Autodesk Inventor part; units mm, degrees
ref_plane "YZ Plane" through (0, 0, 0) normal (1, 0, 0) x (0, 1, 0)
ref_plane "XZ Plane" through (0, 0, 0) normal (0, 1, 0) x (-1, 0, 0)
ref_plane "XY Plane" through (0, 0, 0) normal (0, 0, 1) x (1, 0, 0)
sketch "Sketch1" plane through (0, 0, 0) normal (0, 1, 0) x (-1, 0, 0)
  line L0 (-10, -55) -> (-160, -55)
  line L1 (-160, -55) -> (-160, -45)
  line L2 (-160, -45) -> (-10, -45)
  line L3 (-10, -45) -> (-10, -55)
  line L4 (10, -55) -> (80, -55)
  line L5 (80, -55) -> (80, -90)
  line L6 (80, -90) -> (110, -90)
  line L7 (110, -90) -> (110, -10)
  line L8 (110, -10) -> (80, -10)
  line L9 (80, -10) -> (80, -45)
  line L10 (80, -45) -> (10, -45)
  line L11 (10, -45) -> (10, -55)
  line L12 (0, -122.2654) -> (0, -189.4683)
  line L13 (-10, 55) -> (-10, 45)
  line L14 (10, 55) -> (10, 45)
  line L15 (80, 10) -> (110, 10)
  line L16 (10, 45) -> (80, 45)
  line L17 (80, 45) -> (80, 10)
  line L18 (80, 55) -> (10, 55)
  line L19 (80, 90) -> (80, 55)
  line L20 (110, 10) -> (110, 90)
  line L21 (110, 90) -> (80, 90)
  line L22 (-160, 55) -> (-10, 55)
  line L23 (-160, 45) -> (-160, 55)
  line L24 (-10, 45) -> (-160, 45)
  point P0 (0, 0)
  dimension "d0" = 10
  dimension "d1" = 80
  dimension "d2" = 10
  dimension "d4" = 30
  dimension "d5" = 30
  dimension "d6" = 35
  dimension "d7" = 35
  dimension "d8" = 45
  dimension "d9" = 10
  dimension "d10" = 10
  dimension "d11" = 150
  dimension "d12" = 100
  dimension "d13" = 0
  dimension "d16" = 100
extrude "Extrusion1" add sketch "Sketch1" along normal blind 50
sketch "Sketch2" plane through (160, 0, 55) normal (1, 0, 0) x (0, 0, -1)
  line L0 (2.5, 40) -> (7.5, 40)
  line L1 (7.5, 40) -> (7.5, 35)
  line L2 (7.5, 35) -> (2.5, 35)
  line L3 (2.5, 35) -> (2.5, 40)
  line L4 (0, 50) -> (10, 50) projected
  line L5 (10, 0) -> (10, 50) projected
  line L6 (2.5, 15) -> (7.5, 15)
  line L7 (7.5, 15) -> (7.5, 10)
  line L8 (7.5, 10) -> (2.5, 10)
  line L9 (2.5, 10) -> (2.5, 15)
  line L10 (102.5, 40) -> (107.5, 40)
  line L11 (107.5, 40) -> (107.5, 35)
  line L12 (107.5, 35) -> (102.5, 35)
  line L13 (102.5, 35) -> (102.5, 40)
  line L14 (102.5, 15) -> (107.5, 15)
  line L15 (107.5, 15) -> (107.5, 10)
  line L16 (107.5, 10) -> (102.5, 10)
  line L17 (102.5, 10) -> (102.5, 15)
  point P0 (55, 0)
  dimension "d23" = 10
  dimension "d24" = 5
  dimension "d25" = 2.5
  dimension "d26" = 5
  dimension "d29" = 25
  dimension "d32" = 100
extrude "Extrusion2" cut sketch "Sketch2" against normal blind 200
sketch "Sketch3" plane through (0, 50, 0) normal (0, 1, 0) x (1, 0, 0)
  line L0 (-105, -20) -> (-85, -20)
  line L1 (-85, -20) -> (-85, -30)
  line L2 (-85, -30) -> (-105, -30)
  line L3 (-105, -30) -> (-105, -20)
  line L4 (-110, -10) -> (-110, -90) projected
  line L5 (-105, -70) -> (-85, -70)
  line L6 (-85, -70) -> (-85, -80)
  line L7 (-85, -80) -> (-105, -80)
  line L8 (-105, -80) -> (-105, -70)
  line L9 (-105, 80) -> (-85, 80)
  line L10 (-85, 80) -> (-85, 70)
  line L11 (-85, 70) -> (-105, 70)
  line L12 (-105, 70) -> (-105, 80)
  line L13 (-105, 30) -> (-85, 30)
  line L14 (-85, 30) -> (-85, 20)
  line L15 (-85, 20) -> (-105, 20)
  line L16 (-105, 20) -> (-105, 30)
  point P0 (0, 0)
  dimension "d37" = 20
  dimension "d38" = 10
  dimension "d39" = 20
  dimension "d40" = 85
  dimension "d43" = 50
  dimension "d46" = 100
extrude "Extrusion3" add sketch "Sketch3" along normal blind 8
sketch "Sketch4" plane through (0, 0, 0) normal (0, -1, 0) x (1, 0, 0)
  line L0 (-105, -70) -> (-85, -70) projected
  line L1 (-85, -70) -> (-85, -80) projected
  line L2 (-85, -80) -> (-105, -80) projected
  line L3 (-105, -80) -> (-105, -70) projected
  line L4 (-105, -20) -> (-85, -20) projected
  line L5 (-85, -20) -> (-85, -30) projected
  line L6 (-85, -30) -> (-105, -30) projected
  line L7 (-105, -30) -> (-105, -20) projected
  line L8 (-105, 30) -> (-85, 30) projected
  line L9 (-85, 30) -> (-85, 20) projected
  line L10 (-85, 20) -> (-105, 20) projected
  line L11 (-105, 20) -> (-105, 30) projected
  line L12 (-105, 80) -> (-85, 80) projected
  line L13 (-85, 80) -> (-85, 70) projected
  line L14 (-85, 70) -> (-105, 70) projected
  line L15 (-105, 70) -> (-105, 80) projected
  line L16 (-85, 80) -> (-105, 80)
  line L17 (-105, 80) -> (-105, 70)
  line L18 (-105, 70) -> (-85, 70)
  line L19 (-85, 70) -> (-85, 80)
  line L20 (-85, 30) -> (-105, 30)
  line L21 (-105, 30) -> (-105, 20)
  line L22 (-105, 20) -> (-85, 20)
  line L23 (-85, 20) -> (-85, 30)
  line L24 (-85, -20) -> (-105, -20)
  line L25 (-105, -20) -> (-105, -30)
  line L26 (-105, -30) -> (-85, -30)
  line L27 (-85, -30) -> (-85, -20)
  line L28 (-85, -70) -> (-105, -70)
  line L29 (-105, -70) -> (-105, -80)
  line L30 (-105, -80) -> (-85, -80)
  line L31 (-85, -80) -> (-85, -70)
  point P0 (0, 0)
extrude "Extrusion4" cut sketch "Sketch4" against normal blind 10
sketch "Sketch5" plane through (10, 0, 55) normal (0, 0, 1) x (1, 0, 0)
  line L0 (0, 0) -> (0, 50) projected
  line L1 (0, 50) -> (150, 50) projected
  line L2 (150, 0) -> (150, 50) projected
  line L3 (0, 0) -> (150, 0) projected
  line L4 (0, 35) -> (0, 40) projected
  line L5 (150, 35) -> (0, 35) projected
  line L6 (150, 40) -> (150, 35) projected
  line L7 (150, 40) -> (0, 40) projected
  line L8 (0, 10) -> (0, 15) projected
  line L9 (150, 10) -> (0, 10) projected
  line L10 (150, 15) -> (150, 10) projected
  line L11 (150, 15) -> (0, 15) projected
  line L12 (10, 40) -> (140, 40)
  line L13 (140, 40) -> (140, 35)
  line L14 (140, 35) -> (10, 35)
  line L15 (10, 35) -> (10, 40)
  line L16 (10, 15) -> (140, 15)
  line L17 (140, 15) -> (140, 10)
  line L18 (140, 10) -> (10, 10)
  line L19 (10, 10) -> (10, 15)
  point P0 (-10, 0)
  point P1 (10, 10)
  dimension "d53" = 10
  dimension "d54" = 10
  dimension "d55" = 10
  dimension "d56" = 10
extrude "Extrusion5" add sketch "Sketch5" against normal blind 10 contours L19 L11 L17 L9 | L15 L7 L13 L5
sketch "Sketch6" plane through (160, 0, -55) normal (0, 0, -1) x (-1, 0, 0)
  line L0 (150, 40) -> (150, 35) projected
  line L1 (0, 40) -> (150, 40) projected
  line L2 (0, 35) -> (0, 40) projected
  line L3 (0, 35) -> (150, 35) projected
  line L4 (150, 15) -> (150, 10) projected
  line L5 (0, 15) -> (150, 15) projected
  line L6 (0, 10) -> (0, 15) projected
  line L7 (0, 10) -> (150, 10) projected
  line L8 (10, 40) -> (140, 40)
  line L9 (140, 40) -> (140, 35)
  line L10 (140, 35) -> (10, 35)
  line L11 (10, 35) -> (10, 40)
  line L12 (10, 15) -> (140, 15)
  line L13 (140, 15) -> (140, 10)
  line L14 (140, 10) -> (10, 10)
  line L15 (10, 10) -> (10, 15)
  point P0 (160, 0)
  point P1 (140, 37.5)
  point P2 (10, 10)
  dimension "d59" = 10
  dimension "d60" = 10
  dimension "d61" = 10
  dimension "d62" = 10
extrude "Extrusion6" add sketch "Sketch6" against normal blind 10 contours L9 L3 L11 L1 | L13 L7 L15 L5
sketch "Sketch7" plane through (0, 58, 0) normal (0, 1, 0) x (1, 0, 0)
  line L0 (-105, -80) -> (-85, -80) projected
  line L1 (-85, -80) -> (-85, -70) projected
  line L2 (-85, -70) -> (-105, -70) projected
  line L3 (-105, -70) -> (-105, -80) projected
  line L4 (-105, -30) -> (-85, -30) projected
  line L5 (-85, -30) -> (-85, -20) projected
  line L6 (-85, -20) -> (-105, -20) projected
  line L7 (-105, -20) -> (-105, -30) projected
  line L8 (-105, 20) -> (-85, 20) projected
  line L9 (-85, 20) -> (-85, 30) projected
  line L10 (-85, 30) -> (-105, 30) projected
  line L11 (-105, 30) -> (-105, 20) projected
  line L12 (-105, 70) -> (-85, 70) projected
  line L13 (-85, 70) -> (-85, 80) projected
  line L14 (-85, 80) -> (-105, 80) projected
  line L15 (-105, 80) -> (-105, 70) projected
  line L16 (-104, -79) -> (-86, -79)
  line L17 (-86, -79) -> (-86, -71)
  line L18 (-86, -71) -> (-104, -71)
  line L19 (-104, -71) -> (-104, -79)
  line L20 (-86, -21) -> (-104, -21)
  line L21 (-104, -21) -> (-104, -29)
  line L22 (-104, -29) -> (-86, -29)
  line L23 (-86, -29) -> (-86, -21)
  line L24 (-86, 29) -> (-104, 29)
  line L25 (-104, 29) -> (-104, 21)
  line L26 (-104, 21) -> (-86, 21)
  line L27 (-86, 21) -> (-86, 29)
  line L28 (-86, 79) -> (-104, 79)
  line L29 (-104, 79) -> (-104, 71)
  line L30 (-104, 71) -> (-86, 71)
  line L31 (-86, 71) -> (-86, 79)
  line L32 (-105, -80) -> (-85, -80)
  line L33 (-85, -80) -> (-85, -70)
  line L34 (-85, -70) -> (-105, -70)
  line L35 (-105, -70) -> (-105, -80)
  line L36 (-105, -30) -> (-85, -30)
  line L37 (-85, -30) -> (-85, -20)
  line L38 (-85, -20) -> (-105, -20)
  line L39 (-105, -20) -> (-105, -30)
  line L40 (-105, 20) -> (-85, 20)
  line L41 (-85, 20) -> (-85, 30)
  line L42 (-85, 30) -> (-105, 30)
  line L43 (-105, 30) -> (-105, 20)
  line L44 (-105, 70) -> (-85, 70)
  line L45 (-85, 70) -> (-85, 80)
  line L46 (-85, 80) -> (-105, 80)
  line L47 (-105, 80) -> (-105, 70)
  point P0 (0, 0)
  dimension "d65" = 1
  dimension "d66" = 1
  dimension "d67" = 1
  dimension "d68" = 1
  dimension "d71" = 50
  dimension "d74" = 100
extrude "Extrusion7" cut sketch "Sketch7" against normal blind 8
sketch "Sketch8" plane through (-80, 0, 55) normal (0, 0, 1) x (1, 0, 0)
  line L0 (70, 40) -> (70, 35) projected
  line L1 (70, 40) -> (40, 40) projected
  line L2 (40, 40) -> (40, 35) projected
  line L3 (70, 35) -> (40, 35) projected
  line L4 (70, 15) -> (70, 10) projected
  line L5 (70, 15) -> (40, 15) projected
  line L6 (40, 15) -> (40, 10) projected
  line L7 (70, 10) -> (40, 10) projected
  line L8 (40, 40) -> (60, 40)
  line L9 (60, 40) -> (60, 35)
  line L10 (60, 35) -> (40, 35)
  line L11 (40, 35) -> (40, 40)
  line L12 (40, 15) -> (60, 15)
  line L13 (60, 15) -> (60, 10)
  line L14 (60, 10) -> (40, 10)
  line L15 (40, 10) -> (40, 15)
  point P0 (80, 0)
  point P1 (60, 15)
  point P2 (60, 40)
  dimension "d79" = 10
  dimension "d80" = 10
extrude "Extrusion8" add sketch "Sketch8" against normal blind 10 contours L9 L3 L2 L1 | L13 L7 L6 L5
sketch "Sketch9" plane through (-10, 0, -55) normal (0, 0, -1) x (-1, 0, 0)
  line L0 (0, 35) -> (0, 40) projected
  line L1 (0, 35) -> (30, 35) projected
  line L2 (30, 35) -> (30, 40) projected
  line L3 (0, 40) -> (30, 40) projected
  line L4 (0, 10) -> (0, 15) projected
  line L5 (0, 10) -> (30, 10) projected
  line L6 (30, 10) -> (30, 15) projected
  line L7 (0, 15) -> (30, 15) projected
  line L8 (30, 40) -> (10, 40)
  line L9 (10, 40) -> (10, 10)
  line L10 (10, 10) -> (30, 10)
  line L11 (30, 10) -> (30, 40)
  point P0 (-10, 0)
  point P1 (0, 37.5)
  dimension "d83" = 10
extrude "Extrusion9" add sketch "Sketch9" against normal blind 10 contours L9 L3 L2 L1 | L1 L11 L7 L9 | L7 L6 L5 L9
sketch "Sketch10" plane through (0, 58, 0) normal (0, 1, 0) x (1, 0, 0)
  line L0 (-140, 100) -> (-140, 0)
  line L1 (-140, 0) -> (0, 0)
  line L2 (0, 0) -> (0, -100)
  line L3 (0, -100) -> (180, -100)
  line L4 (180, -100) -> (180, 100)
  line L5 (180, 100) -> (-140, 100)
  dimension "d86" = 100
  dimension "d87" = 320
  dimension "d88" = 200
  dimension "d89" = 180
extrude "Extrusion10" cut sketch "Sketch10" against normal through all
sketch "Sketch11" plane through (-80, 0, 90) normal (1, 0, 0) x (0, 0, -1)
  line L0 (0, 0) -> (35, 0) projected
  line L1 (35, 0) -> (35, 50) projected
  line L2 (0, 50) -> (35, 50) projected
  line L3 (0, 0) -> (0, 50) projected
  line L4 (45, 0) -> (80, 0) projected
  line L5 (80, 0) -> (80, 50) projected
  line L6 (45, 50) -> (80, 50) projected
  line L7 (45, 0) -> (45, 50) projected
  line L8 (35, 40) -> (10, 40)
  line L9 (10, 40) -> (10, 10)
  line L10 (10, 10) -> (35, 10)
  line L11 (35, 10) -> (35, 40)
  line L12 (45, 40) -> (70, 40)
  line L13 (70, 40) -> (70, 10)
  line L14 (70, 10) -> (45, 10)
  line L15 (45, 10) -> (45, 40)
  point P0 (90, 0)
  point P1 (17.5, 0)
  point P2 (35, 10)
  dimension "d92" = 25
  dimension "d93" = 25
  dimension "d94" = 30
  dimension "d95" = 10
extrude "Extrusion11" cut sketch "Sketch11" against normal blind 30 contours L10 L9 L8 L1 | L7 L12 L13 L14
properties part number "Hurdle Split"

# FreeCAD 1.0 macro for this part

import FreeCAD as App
import Part
import Sketcher


def add_polygon(sketch, points):
    """Adds a closed chain of lines whose ends are joined by coincident constraints."""
    first, n = sketch.GeometryCount, len(points)
    for a, b in zip(points, points[1:] + points[:1]):
        sketch.addGeometry(Part.LineSegment(App.Vector(*a, 0), App.Vector(*b, 0)), False)
    for i in range(n):
        sketch.addConstraint(Sketcher.Constraint("Coincident", first + i, 2, first + (i + 1) % n, 1))

doc = App.newDocument("Part")
body = doc.addObject("PartDesign::Body", "Body")
body.AllowCompound = True

# Sketch on XZ plane
sketch1 = body.newObject("Sketcher::SketchObject", "Sketch")
sketch1.AttachmentSupport = (doc.getObject("XZ_Plane"), [""])
sketch1.MapMode = "FlatFace"
add_polygon(sketch1, [(160, -55), (10, -55), (10, -45), (160, -45)])  # lines 0-3
add_polygon(sketch1, [(-10, -45), (-10, -55), (-80, -55), (-80, -90), (-110, -90), (-110, -10), (-80, -10), (-80, -45)])  # lines 4-11
add_polygon(sketch1, [(10, 45), (10, 55), (160, 55), (160, 45)])  # lines 12-15
add_polygon(sketch1, [(-80, 55), (-10, 55), (-10, 45), (-80, 45), (-80, 10), (-110, 10), (-110, 90), (-80, 90)])  # lines 16-23
sketch1.addConstraint([
    Sketcher.Constraint("Horizontal", 0),
    Sketcher.Constraint("Vertical", 1),
    Sketcher.Constraint("Horizontal", 2),
    Sketcher.Constraint("Vertical", 3),
    Sketcher.Constraint("Vertical", 4),
    Sketcher.Constraint("Horizontal", 5),
    Sketcher.Constraint("Vertical", 6),
    Sketcher.Constraint("Horizontal", 7),
    Sketcher.Constraint("Vertical", 8),
    Sketcher.Constraint("Horizontal", 9),
    Sketcher.Constraint("Vertical", 10),
    Sketcher.Constraint("Horizontal", 11),
    Sketcher.Constraint("Vertical", 12),
    Sketcher.Constraint("Horizontal", 13),
    Sketcher.Constraint("Vertical", 14),
    Sketcher.Constraint("Horizontal", 15),
    Sketcher.Constraint("Horizontal", 16),
    Sketcher.Constraint("Vertical", 17),
    Sketcher.Constraint("Horizontal", 18),
    Sketcher.Constraint("Vertical", 19),
    Sketcher.Constraint("Horizontal", 20),
    Sketcher.Constraint("Vertical", 21),
    Sketcher.Constraint("Horizontal", 22),
    Sketcher.Constraint("Vertical", 23),
    Sketcher.Constraint("Symmetric", 4, 2, 12, 2, -1, 1),
    Sketcher.Constraint("Symmetric", 0, 2, 16, 2, -1, 1),
    Sketcher.Constraint("Symmetric", 0, 2, 4, 2, -2),
    Sketcher.Constraint("Symmetric", 2, 2, 14, 2, -1),
    Sketcher.Constraint("Symmetric", 10, 2, 18, 2, -1),
    Sketcher.Constraint("Symmetric", 8, 2, 20, 2, -1),
    Sketcher.Constraint("Symmetric", 6, 2, 22, 2, -1),
    Sketcher.Constraint("Horizontal", 2, 2, 10, 2),
    Sketcher.Constraint("Vertical", 6, 2, 9, 2),
    Sketcher.Constraint("Equal", 6, 10),
    Sketcher.Constraint("DistanceX", 0, 2, 0, 1, 150.0),
    Sketcher.Constraint("DistanceX", 7, 2, 7, 1, 30.0),
    Sketcher.Constraint("DistanceY", 1, 1, 1, 2, 10.0),
    Sketcher.Constraint("DistanceY", 6, 2, 6, 1, 35.0),
    Sketcher.Constraint("DistanceX", -1, 1, 0, 2, 10.0),
    Sketcher.Constraint("DistanceY", 1, 2, -1, 1, 45.0),
    Sketcher.Constraint("DistanceX", 5, 2, -1, 1, 80.0),
])
pad1 = body.newObject("PartDesign::Pad", "Pad")
pad1.Profile = sketch1
pad1.Length = 50
pad1.Reversed = True

# Sketch on YZ plane
sketch2 = body.newObject("Sketcher::SketchObject", "Sketch001")
sketch2.AttachmentSupport = (doc.getObject("YZ_Plane"), [""])
sketch2.MapMode = "FlatFace"
sketch2.AttachmentOffset = App.Placement(App.Vector(0, 0, 160), App.Rotation())
add_polygon(sketch2, [(40, 48), (40, 52), (35, 52), (35, 48)])  # lines 0-3
add_polygon(sketch2, [(15, 48), (15, 52), (10, 52), (10, 48)])  # lines 4-7
add_polygon(sketch2, [(40, -52), (40, -48), (35, -48), (35, -52)])  # lines 8-11
add_polygon(sketch2, [(15, -52), (15, -48), (10, -48), (10, -52)])  # lines 12-15
sketch2.addConstraint([
    Sketcher.Constraint("Vertical", 0),
    Sketcher.Constraint("Horizontal", 1),
    Sketcher.Constraint("Vertical", 2),
    Sketcher.Constraint("Horizontal", 3),
    Sketcher.Constraint("Vertical", 4),
    Sketcher.Constraint("Horizontal", 5),
    Sketcher.Constraint("Vertical", 6),
    Sketcher.Constraint("Horizontal", 7),
    Sketcher.Constraint("Vertical", 8),
    Sketcher.Constraint("Horizontal", 9),
    Sketcher.Constraint("Vertical", 10),
    Sketcher.Constraint("Horizontal", 11),
    Sketcher.Constraint("Vertical", 12),
    Sketcher.Constraint("Horizontal", 13),
    Sketcher.Constraint("Vertical", 14),
    Sketcher.Constraint("Horizontal", 15),
    Sketcher.Constraint("Symmetric", 3, 2, 8, 2, -1),
    Sketcher.Constraint("Symmetric", 1, 2, 10, 2, -1),
    Sketcher.Constraint("Symmetric", 7, 2, 12, 2, -1),
    Sketcher.Constraint("Symmetric", 5, 2, 14, 2, -1),
    Sketcher.Constraint("Horizontal", 1, 2, 4, 2),
    Sketcher.Constraint("Horizontal", 3, 2, 6, 2),
    Sketcher.Constraint("Equal", 3, 5),
    Sketcher.Constraint("Equal", 15, 0),
    Sketcher.Constraint("DistanceX", 1, 2, 1, 1, 5.0),
    Sketcher.Constraint("DistanceX", -1, 1, 5, 2, 10.0),
    Sketcher.Constraint("DistanceX", 4, 2, 0, 2, 25.0),
    Sketcher.Constraint("DistanceY", 8, 2, 0, 2, 100.0),
])
pocket1 = body.newObject("PartDesign::Pocket", "Pocket")
pocket1.Profile = sketch2
pocket1.Length = 200

# Sketch on XZ plane
sketch3 = body.newObject("Sketcher::SketchObject", "Sketch002")
sketch3.AttachmentSupport = (doc.getObject("XZ_Plane"), [""])
sketch3.MapMode = "FlatFace"
sketch3.AttachmentOffset = App.Placement(App.Vector(0, 0, -50), App.Rotation())
add_polygon(sketch3, [(-85, 20), (-105, 20), (-105, 30), (-85, 30)])  # lines 0-3
add_polygon(sketch3, [(-85, 70), (-105, 70), (-105, 80), (-85, 80)])  # lines 4-7
add_polygon(sketch3, [(-85, -80), (-105, -80), (-105, -70), (-85, -70)])  # lines 8-11
add_polygon(sketch3, [(-85, -30), (-105, -30), (-105, -20), (-85, -20)])  # lines 12-15
sketch3.addConstraint([
    Sketcher.Constraint("Horizontal", 0),
    Sketcher.Constraint("Vertical", 1),
    Sketcher.Constraint("Horizontal", 2),
    Sketcher.Constraint("Vertical", 3),
    Sketcher.Constraint("Horizontal", 4),
    Sketcher.Constraint("Vertical", 5),
    Sketcher.Constraint("Horizontal", 6),
    Sketcher.Constraint("Vertical", 7),
    Sketcher.Constraint("Horizontal", 8),
    Sketcher.Constraint("Vertical", 9),
    Sketcher.Constraint("Horizontal", 10),
    Sketcher.Constraint("Vertical", 11),
    Sketcher.Constraint("Horizontal", 12),
    Sketcher.Constraint("Vertical", 13),
    Sketcher.Constraint("Horizontal", 14),
    Sketcher.Constraint("Vertical", 15),
    Sketcher.Constraint("Symmetric", 5, 2, 8, 2, -1),
    Sketcher.Constraint("Symmetric", 7, 2, 10, 2, -1),
    Sketcher.Constraint("Symmetric", 1, 2, 12, 2, -1),
    Sketcher.Constraint("Symmetric", 3, 2, 14, 2, -1),
    Sketcher.Constraint("Vertical", 1, 2, 4, 2),
    Sketcher.Constraint("Vertical", 3, 2, 6, 2),
    Sketcher.Constraint("Equal", 3, 5),
    Sketcher.Constraint("DistanceX", 0, 2, 0, 1, 20.0),
    Sketcher.Constraint("DistanceY", 1, 1, 1, 2, 10.0),
    Sketcher.Constraint("DistanceY", -1, 1, 0, 2, 20.0),
    Sketcher.Constraint("DistanceX", 2, 2, -1, 1, 85.0),
    Sketcher.Constraint("DistanceY", 0, 2, 4, 2, 50.0),
])
pad2 = body.newObject("PartDesign::Pad", "Pad001")
pad2.Profile = sketch3
pad2.Length = 8
pad2.Reversed = True

# Sketch on XZ plane
sketch4 = body.newObject("Sketcher::SketchObject", "Sketch003")
sketch4.AttachmentSupport = (doc.getObject("XZ_Plane"), [""])
sketch4.MapMode = "FlatFace"
add_polygon(sketch4, [(-85, -70), (-105, -70), (-105, -80), (-85, -80)])  # lines 0-3
add_polygon(sketch4, [(-85, -20), (-105, -20), (-105, -30), (-85, -30)])  # lines 4-7
add_polygon(sketch4, [(-85, 30), (-105, 30), (-105, 20), (-85, 20)])  # lines 8-11
add_polygon(sketch4, [(-85, 80), (-105, 80), (-105, 70), (-85, 70)])  # lines 12-15
sketch4.addConstraint([
    Sketcher.Constraint("Horizontal", 0),
    Sketcher.Constraint("Vertical", 1),
    Sketcher.Constraint("Horizontal", 2),
    Sketcher.Constraint("Vertical", 3),
    Sketcher.Constraint("Horizontal", 4),
    Sketcher.Constraint("Vertical", 5),
    Sketcher.Constraint("Horizontal", 6),
    Sketcher.Constraint("Vertical", 7),
    Sketcher.Constraint("Horizontal", 8),
    Sketcher.Constraint("Vertical", 9),
    Sketcher.Constraint("Horizontal", 10),
    Sketcher.Constraint("Vertical", 11),
    Sketcher.Constraint("Horizontal", 12),
    Sketcher.Constraint("Vertical", 13),
    Sketcher.Constraint("Horizontal", 14),
    Sketcher.Constraint("Vertical", 15),
    Sketcher.Constraint("Symmetric", 5, 2, 8, 2, -1),
    Sketcher.Constraint("Symmetric", 7, 2, 10, 2, -1),
    Sketcher.Constraint("Symmetric", 1, 2, 12, 2, -1),
    Sketcher.Constraint("Symmetric", 3, 2, 14, 2, -1),
    Sketcher.Constraint("Vertical", 1, 2, 4, 2),
    Sketcher.Constraint("Vertical", 3, 2, 6, 2),
    Sketcher.Constraint("Equal", 3, 5),
    Sketcher.Constraint("DistanceX", 0, 2, 0, 1, 20.0),
    Sketcher.Constraint("DistanceY", 1, 2, 1, 1, 10.0),
    Sketcher.Constraint("DistanceX", 0, 2, -1, 1, 105.0),
    Sketcher.Constraint("DistanceY", 0, 2, -1, 1, 70.0),
    Sketcher.Constraint("DistanceY", 4, 2, -1, 1, 20.0),
])
pocket2 = body.newObject("PartDesign::Pocket", "Pocket001")
pocket2.Profile = sketch4
pocket2.Length = 10

# Sketch on XY plane
sketch5 = body.newObject("Sketcher::SketchObject", "Sketch004")
sketch5.AttachmentSupport = (doc.getObject("XY_Plane"), [""])
sketch5.MapMode = "FlatFace"
sketch5.AttachmentOffset = App.Placement(App.Vector(0, 0, 55), App.Rotation())
add_polygon(sketch5, [(20, 15), (20, 10), (150, 10), (150, 15)])  # lines 0-3
add_polygon(sketch5, [(20, 40), (20, 35), (150, 35), (150, 40)])  # lines 4-7
sketch5.addConstraint([
    Sketcher.Constraint("Vertical", 0),
    Sketcher.Constraint("Horizontal", 1),
    Sketcher.Constraint("Vertical", 2),
    Sketcher.Constraint("Horizontal", 3),
    Sketcher.Constraint("Vertical", 4),
    Sketcher.Constraint("Horizontal", 5),
    Sketcher.Constraint("Vertical", 6),
    Sketcher.Constraint("Horizontal", 7),
    Sketcher.Constraint("Vertical", 3, 2, 4, 2),
    Sketcher.Constraint("Vertical", 2, 2, 5, 2),
    Sketcher.Constraint("Equal", 2, 4),
    Sketcher.Constraint("DistanceY", -1, 1, 0, 2, 10.0),
    Sketcher.Constraint("DistanceX", 1, 1, 1, 2, 130.0),
    Sketcher.Constraint("DistanceY", 0, 2, 0, 1, 5.0),
    Sketcher.Constraint("DistanceX", -1, 1, 0, 2, 20.0),
    Sketcher.Constraint("DistanceY", -1, 1, 4, 2, 35.0),
])
pad3 = body.newObject("PartDesign::Pad", "Pad002")
pad3.Profile = sketch5
pad3.Length = 10
pad3.Reversed = True

# Sketch on XY plane
sketch6 = body.newObject("Sketcher::SketchObject", "Sketch005")
sketch6.AttachmentSupport = (doc.getObject("XY_Plane"), [""])
sketch6.MapMode = "FlatFace"
sketch6.AttachmentOffset = App.Placement(App.Vector(0, 0, -55), App.Rotation())
add_polygon(sketch6, [(20, 35), (20, 40), (150, 40), (150, 35)])  # lines 0-3
add_polygon(sketch6, [(20, 10), (20, 15), (150, 15), (150, 10)])  # lines 4-7
sketch6.addConstraint([
    Sketcher.Constraint("Vertical", 0),
    Sketcher.Constraint("Horizontal", 1),
    Sketcher.Constraint("Vertical", 2),
    Sketcher.Constraint("Horizontal", 3),
    Sketcher.Constraint("Vertical", 4),
    Sketcher.Constraint("Horizontal", 5),
    Sketcher.Constraint("Vertical", 6),
    Sketcher.Constraint("Horizontal", 7),
    Sketcher.Constraint("Vertical", 3, 2, 4, 2),
    Sketcher.Constraint("Vertical", 2, 2, 5, 2),
    Sketcher.Constraint("Equal", 2, 4),
    Sketcher.Constraint("DistanceY", -1, 1, 6, 2, 10.0),
    Sketcher.Constraint("DistanceX", 1, 1, 1, 2, 130.0),
    Sketcher.Constraint("DistanceY", 0, 1, 0, 2, 5.0),
    Sketcher.Constraint("DistanceX", -1, 1, 0, 2, 20.0),
    Sketcher.Constraint("DistanceY", -1, 1, 0, 2, 40.0),
])
pad4 = body.newObject("PartDesign::Pad", "Pad003")
pad4.Profile = sketch6
pad4.Length = 10

# Sketch on XZ plane
sketch7 = body.newObject("Sketcher::SketchObject", "Sketch006")
sketch7.AttachmentSupport = (doc.getObject("XZ_Plane"), [""])
sketch7.MapMode = "FlatFace"
sketch7.AttachmentOffset = App.Placement(App.Vector(0, 0, -58), App.Rotation())
add_polygon(sketch7, [(-105, 70), (-105, 80), (-85, 80), (-85, 70)])  # lines 0-3
add_polygon(sketch7, [(-86, 79), (-104, 79), (-104, 71), (-86, 71)])  # lines 4-7
add_polygon(sketch7, [(-105, 20), (-105, 30), (-85, 30), (-85, 20)])  # lines 8-11
add_polygon(sketch7, [(-104, 21), (-86, 21), (-86, 29), (-104, 29)])  # lines 12-15
add_polygon(sketch7, [(-105, -30), (-105, -20), (-85, -20), (-85, -30)])  # lines 16-19
add_polygon(sketch7, [(-104, -29), (-86, -29), (-86, -21), (-104, -21)])  # lines 20-23
add_polygon(sketch7, [(-105, -80), (-105, -70), (-85, -70), (-85, -80)])  # lines 24-27
add_polygon(sketch7, [(-104, -79), (-86, -79), (-86, -71), (-104, -71)])  # lines 28-31
sketch7.addConstraint([
    Sketcher.Constraint("Vertical", 0),
    Sketcher.Constraint("Horizontal", 1),
    Sketcher.Constraint("Vertical", 2),
    Sketcher.Constraint("Horizontal", 3),
    Sketcher.Constraint("Horizontal", 4),
    Sketcher.Constraint("Vertical", 5),
    Sketcher.Constraint("Horizontal", 6),
    Sketcher.Constraint("Vertical", 7),
    Sketcher.Constraint("Vertical", 8),
    Sketcher.Constraint("Horizontal", 9),
    Sketcher.Constraint("Vertical", 10),
    Sketcher.Constraint("Horizontal", 11),
    Sketcher.Constraint("Horizontal", 12),
    Sketcher.Constraint("Vertical", 13),
    Sketcher.Constraint("Horizontal", 14),
    Sketcher.Constraint("Vertical", 15),
    Sketcher.Constraint("Vertical", 16),
    Sketcher.Constraint("Horizontal", 17),
    Sketcher.Constraint("Vertical", 18),
    Sketcher.Constraint("Horizontal", 19),
    Sketcher.Constraint("Horizontal", 20),
    Sketcher.Constraint("Vertical", 21),
    Sketcher.Constraint("Horizontal", 22),
    Sketcher.Constraint("Vertical", 23),
    Sketcher.Constraint("Vertical", 24),
    Sketcher.Constraint("Horizontal", 25),
    Sketcher.Constraint("Vertical", 26),
    Sketcher.Constraint("Horizontal", 27),
    Sketcher.Constraint("Horizontal", 28),
    Sketcher.Constraint("Vertical", 29),
    Sketcher.Constraint("Horizontal", 30),
    Sketcher.Constraint("Vertical", 31),
    Sketcher.Constraint("Symmetric", 11, 2, 16, 2, -1),
    Sketcher.Constraint("Symmetric", 9, 2, 18, 2, -1),
    Sketcher.Constraint("Symmetric", 13, 2, 20, 2, -1),
    Sketcher.Constraint("Symmetric", 15, 2, 22, 2, -1),
    Sketcher.Constraint("Symmetric", 3, 2, 24, 2, -1),
    Sketcher.Constraint("Symmetric", 1, 2, 26, 2, -1),
    Sketcher.Constraint("Symmetric", 7, 2, 28, 2, -1),
    Sketcher.Constraint("Symmetric", 5, 2, 30, 2, -1),
    Sketcher.Constraint("Vertical", 3, 2, 8, 2),
    Sketcher.Constraint("Vertical", 2, 2, 9, 2),
    Sketcher.Constraint("Vertical", 7, 2, 12, 2),
    Sketcher.Constraint("Vertical", 5, 2, 14, 2),
    Sketcher.Constraint("Equal", 2, 8),
    Sketcher.Constraint("Equal", 7, 13),
    Sketcher.Constraint("DistanceX", 0, 2, 4, 2, 1.0),
    Sketcher.Constraint("DistanceY", 4, 2, 0, 2, 1.0),
    Sketcher.Constraint("DistanceY", 3, 2, 5, 2, 1.0),
    Sketcher.Constraint("DistanceX", 6, 2, 2, 2, 1.0),
    Sketcher.Constraint("DistanceY", 10, 2, 2, 2, 50.0),
    Sketcher.Constraint("DistanceY", 10, 2, 12, 2, 1.0),
    Sketcher.Constraint("DistanceY", 18, 2, 10, 2, 50.0),
    Sketcher.Constraint("DistanceX", 1, 1, 1, 2, 20.0),
    Sketcher.Constraint("DistanceY", 0, 1, 0, 2, 10.0),
    Sketcher.Constraint("DistanceX", 0, 2, -1, 1, 105.0),
])
pocket3 = body.newObject("PartDesign::Pocket", "Pocket002")
pocket3.Profile = sketch7
pocket3.Length = 8
pocket3.Reversed = True

# Sketch on XY plane
sketch8 = body.newObject("Sketcher::SketchObject", "Sketch007")
sketch8.AttachmentSupport = (doc.getObject("XY_Plane"), [""])
sketch8.MapMode = "FlatFace"
sketch8.AttachmentOffset = App.Placement(App.Vector(0, 0, 55), App.Rotation())
add_polygon(sketch8, [(-20, 35), (-20, 40), (-40, 40), (-40, 35)])  # lines 0-3
add_polygon(sketch8, [(-20, 10), (-20, 15), (-40, 15), (-40, 10)])  # lines 4-7
sketch8.addConstraint([
    Sketcher.Constraint("Vertical", 0),
    Sketcher.Constraint("Horizontal", 1),
    Sketcher.Constraint("Vertical", 2),
    Sketcher.Constraint("Horizontal", 3),
    Sketcher.Constraint("Vertical", 4),
    Sketcher.Constraint("Horizontal", 5),
    Sketcher.Constraint("Vertical", 6),
    Sketcher.Constraint("Horizontal", 7),
    Sketcher.Constraint("Vertical", 3, 2, 4, 2),
    Sketcher.Constraint("Vertical", 2, 2, 5, 2),
    Sketcher.Constraint("Equal", 2, 4),
    Sketcher.Constraint("DistanceY", -1, 1, 6, 2, 10.0),
    Sketcher.Constraint("DistanceX", 1, 2, 1, 1, 20.0),
    Sketcher.Constraint("DistanceY", 0, 1, 0, 2, 5.0),
    Sketcher.Constraint("DistanceX", 0, 2, -1, 1, 20.0),
    Sketcher.Constraint("DistanceY", -1, 1, 0, 2, 40.0),
])
pad5 = body.newObject("PartDesign::Pad", "Pad004")
pad5.Profile = sketch8
pad5.Length = 10
pad5.Reversed = True

# Sketch on XY plane
sketch9 = body.newObject("Sketcher::SketchObject", "Sketch008")
sketch9.AttachmentSupport = (doc.getObject("XY_Plane"), [""])
sketch9.MapMode = "FlatFace"
sketch9.AttachmentOffset = App.Placement(App.Vector(0, 0, -55), App.Rotation())
add_polygon(sketch9, [(-20, 40), (-20, 10), (-40, 10), (-40, 40)])  # lines 0-3
sketch9.addConstraint([
    Sketcher.Constraint("Vertical", 0),
    Sketcher.Constraint("Horizontal", 1),
    Sketcher.Constraint("Vertical", 2),
    Sketcher.Constraint("Horizontal", 3),
    Sketcher.Constraint("DistanceY", -1, 1, 0, 2, 10.0),
    Sketcher.Constraint("DistanceX", 1, 2, 1, 1, 20.0),
    Sketcher.Constraint("DistanceY", 0, 2, 0, 1, 30.0),
    Sketcher.Constraint("DistanceX", 0, 2, -1, 1, 20.0),
])
pad6 = body.newObject("PartDesign::Pad", "Pad005")
pad6.Profile = sketch9
pad6.Length = 10

# Sketch on XZ plane
sketch10 = body.newObject("Sketcher::SketchObject", "Sketch009")
sketch10.AttachmentSupport = (doc.getObject("XZ_Plane"), [""])
sketch10.MapMode = "FlatFace"
sketch10.AttachmentOffset = App.Placement(App.Vector(0, 0, -58), App.Rotation())
add_polygon(sketch10, [(180, -100), (-140, -100), (-140, 0), (0, 0), (0, 100), (180, 100)])  # lines 0-5
sketch10.addConstraint([
    Sketcher.Constraint("Horizontal", 0),
    Sketcher.Constraint("Vertical", 1),
    Sketcher.Constraint("Horizontal", 2),
    Sketcher.Constraint("Vertical", 3),
    Sketcher.Constraint("Horizontal", 4),
    Sketcher.Constraint("Vertical", 5),
    Sketcher.Constraint("Coincident", 2, 2, -1, 1),
    Sketcher.Constraint("Equal", 1, 3),
    Sketcher.Constraint("DistanceX", 0, 2, 0, 1, 320.0),
    Sketcher.Constraint("DistanceX", 4, 1, 4, 2, 180.0),
    Sketcher.Constraint("DistanceY", 1, 1, 1, 2, 100.0),
])
pocket4 = body.newObject("PartDesign::Pocket", "Pocket003")
pocket4.Profile = sketch10
pocket4.Type = "ThroughAll"
pocket4.Reversed = True

# Sketch on YZ plane
sketch11 = body.newObject("Sketcher::SketchObject", "Sketch010")
sketch11.AttachmentSupport = (doc.getObject("YZ_Plane"), [""])
sketch11.MapMode = "FlatFace"
sketch11.AttachmentOffset = App.Placement(App.Vector(0, 0, -80), App.Rotation())
add_polygon(sketch11, [(10, 80), (10, 55), (40, 55), (40, 80)])  # lines 0-3
add_polygon(sketch11, [(40, 45), (10, 45), (10, 20), (40, 20)])  # lines 4-7
sketch11.addConstraint([
    Sketcher.Constraint("Vertical", 0),
    Sketcher.Constraint("Horizontal", 1),
    Sketcher.Constraint("Vertical", 2),
    Sketcher.Constraint("Horizontal", 3),
    Sketcher.Constraint("Horizontal", 4),
    Sketcher.Constraint("Vertical", 5),
    Sketcher.Constraint("Horizontal", 6),
    Sketcher.Constraint("Vertical", 7),
    Sketcher.Constraint("Vertical", 3, 2, 4, 2),
    Sketcher.Constraint("Vertical", 2, 2, 6, 2),
    Sketcher.Constraint("Equal", 2, 5),
    Sketcher.Constraint("DistanceX", 1, 1, 1, 2, 30.0),
    Sketcher.Constraint("DistanceY", 0, 2, 0, 1, 25.0),
    Sketcher.Constraint("DistanceX", -1, 1, 0, 2, 10.0),
    Sketcher.Constraint("DistanceY", 4, 2, 0, 2, 10.0),
    Sketcher.Constraint("DistanceY", -1, 1, 0, 2, 55.0),
])
pocket5 = body.newObject("PartDesign::Pocket", "Pocket004")
pocket5.Profile = sketch11
pocket5.Length = 30

doc.recompute()
